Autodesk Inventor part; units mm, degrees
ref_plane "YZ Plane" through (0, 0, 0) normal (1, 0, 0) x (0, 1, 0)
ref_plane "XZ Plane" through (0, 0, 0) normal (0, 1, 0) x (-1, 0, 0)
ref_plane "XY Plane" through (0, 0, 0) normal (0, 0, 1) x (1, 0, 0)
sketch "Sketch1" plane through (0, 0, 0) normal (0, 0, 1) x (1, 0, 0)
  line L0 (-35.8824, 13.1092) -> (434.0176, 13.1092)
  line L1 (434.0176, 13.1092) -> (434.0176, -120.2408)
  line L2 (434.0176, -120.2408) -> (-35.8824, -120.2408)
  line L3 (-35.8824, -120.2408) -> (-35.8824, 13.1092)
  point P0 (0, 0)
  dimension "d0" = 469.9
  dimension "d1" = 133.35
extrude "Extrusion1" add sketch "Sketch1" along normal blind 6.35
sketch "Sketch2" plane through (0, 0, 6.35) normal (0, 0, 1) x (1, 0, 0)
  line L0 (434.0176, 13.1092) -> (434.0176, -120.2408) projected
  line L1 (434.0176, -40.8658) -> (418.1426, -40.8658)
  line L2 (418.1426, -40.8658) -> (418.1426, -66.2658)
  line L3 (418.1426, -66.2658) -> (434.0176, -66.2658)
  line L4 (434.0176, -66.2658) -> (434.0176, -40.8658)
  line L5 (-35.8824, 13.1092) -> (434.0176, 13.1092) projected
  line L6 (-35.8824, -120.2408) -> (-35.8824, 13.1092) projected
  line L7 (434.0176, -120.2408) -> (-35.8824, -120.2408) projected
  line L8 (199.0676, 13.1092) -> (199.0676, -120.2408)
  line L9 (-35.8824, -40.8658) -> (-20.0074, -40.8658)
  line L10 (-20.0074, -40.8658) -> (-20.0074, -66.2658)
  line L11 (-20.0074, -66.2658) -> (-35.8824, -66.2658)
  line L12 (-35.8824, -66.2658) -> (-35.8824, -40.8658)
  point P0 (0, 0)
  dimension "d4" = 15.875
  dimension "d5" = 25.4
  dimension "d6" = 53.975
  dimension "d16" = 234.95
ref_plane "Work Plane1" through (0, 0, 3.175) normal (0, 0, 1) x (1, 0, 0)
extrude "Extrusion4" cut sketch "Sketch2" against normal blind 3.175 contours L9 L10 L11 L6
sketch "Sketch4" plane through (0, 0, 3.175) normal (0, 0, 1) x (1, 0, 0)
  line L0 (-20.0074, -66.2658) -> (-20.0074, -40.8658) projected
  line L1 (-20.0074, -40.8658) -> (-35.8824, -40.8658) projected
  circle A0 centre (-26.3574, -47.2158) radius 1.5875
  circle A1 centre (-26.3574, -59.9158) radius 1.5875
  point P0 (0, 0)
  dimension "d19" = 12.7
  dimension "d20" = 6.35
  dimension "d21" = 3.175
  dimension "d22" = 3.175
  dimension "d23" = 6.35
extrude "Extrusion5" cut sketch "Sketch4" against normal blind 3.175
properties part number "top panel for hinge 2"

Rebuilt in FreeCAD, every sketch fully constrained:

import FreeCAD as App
import Part
import Sketcher

V = App.Vector
Q = App.Units.Quantity

doc = App.newDocument("Part")
body = doc.addObject("PartDesign::Body", "Body")

# Sketch on XY plane
sketch1 = body.newObject("Sketcher::SketchObject", "Sketch")
sketch1.AttachmentSupport = (doc.getObject("XY_Plane"), [""])
sketch1.MapMode = "FlatFace"
sketch1.addGeometry(Part.LineSegment(V(434, 13, 0), V(-36, 13, 0)), False)
sketch1.addGeometry(Part.LineSegment(V(-36, 13, 0), V(-36, -120, 0)), False)
sketch1.addGeometry(Part.LineSegment(V(-36, -120, 0), V(434, -120, 0)), False)
sketch1.addGeometry(Part.LineSegment(V(434, -120, 0), V(434, 13, 0)), False)
sketch1.addConstraint(Sketcher.Constraint("Coincident", 0, 2, 1, 1))
sketch1.addConstraint(Sketcher.Constraint("Coincident", 1, 2, 2, 1))
sketch1.addConstraint(Sketcher.Constraint("Coincident", 2, 2, 3, 1))
sketch1.addConstraint(Sketcher.Constraint("Coincident", 3, 2, 0, 1))
sketch1.addConstraint(Sketcher.Constraint("Horizontal", 0))
sketch1.addConstraint(Sketcher.Constraint("Vertical", 1))
sketch1.addConstraint(Sketcher.Constraint("Horizontal", 2))
sketch1.addConstraint(Sketcher.Constraint("Vertical", 3))
sketch1.addConstraint(Sketcher.Constraint("DistanceX", 0, 2, 0, 1, Q("18.5 in")))
sketch1.addConstraint(Sketcher.Constraint("DistanceY", 1, 2, 1, 1, Q("5.25 in")))
sketch1.addConstraint(Sketcher.Constraint("DistanceX", 0, 2, -1, 1, Q("1.4127 in")))
sketch1.addConstraint(Sketcher.Constraint("DistanceY", -1, 1, 0, 2, Q("0.5161 in")))
pad1 = body.newObject("PartDesign::Pad", "Pad")
pad1.Profile = sketch1
pad1.Length = Q("0.25 in")

# Sketch on XY plane
sketch2 = body.newObject("Sketcher::SketchObject", "Sketch001")
sketch2.AttachmentSupport = (doc.getObject("XY_Plane"), [""])
sketch2.MapMode = "FlatFace"
sketch2.AttachmentOffset = App.Placement(V(0, 0, 0.25 * 25.4), App.Rotation())
sketch2.addGeometry(Part.LineSegment(V(-20, -41, 0), V(-36, -41, 0)), False)
sketch2.addGeometry(Part.LineSegment(V(-36, -41, 0), V(-36, -66, 0)), False)
sketch2.addGeometry(Part.LineSegment(V(-36, -66, 0), V(-20, -66, 0)), False)
sketch2.addGeometry(Part.LineSegment(V(-20, -66, 0), V(-20, -41, 0)), False)
sketch2.addConstraint(Sketcher.Constraint("Coincident", 0, 2, 1, 1))
sketch2.addConstraint(Sketcher.Constraint("Coincident", 1, 2, 2, 1))
sketch2.addConstraint(Sketcher.Constraint("Coincident", 2, 2, 3, 1))
sketch2.addConstraint(Sketcher.Constraint("Coincident", 3, 2, 0, 1))
sketch2.addConstraint(Sketcher.Constraint("Horizontal", 0))
sketch2.addConstraint(Sketcher.Constraint("Vertical", 1))
sketch2.addConstraint(Sketcher.Constraint("Horizontal", 2))
sketch2.addConstraint(Sketcher.Constraint("Vertical", 3))
sketch2.addConstraint(Sketcher.Constraint("DistanceY", 1, 2, 1, 1, Q("1 in")))
sketch2.addConstraint(Sketcher.Constraint("DistanceX", 0, 2, 0, 1, Q("0.625 in")))
sketch2.addConstraint(Sketcher.Constraint("DistanceX", 0, 2, -1, 1, Q("1.4127 in")))
sketch2.addConstraint(Sketcher.Constraint("DistanceY", 0, 2, -1, 1, Q("1.6089 in")))
pocket1 = body.newObject("PartDesign::Pocket", "Pocket")
pocket1.Profile = sketch2
pocket1.Length = Q("0.125 in")

# Sketch on XY plane
sketch3 = body.newObject("Sketcher::SketchObject", "Sketch002")
sketch3.AttachmentSupport = (doc.getObject("XY_Plane"), [""])
sketch3.MapMode = "FlatFace"
sketch3.AttachmentOffset = App.Placement(V(0, 0, 0.125 * 25.4), App.Rotation())
sketch3.addGeometry(Part.Circle(V(-26.4, -47.2, 0), V(0, 0, 1), 1.6), False)
sketch3.addGeometry(Part.Circle(V(-26.4, -59.9, 0), V(0, 0, 1), 1.6), False)
sketch3.addConstraint(Sketcher.Constraint("Equal", 0, 1))
sketch3.addConstraint(Sketcher.Constraint("Vertical", 0, 3, 1, 3))
sketch3.addConstraint(Sketcher.Constraint("Diameter", 0, Q("0.125 in")))
sketch3.addConstraint(Sketcher.Constraint("DistanceY", 1, 3, 0, 3, Q("0.5 in")))
sketch3.addConstraint(Sketcher.Constraint("DistanceX", 0, 3, -1, 1, Q("1.0377 in")))
sketch3.addConstraint(Sketcher.Constraint("DistanceY", 0, 3, -1, 1, Q("1.8589 in")))
pocket2 = body.newObject("PartDesign::Pocket", "Pocket001")
pocket2.Profile = sketch3
pocket2.Length = Q("0.125 in")

doc.recompute()
